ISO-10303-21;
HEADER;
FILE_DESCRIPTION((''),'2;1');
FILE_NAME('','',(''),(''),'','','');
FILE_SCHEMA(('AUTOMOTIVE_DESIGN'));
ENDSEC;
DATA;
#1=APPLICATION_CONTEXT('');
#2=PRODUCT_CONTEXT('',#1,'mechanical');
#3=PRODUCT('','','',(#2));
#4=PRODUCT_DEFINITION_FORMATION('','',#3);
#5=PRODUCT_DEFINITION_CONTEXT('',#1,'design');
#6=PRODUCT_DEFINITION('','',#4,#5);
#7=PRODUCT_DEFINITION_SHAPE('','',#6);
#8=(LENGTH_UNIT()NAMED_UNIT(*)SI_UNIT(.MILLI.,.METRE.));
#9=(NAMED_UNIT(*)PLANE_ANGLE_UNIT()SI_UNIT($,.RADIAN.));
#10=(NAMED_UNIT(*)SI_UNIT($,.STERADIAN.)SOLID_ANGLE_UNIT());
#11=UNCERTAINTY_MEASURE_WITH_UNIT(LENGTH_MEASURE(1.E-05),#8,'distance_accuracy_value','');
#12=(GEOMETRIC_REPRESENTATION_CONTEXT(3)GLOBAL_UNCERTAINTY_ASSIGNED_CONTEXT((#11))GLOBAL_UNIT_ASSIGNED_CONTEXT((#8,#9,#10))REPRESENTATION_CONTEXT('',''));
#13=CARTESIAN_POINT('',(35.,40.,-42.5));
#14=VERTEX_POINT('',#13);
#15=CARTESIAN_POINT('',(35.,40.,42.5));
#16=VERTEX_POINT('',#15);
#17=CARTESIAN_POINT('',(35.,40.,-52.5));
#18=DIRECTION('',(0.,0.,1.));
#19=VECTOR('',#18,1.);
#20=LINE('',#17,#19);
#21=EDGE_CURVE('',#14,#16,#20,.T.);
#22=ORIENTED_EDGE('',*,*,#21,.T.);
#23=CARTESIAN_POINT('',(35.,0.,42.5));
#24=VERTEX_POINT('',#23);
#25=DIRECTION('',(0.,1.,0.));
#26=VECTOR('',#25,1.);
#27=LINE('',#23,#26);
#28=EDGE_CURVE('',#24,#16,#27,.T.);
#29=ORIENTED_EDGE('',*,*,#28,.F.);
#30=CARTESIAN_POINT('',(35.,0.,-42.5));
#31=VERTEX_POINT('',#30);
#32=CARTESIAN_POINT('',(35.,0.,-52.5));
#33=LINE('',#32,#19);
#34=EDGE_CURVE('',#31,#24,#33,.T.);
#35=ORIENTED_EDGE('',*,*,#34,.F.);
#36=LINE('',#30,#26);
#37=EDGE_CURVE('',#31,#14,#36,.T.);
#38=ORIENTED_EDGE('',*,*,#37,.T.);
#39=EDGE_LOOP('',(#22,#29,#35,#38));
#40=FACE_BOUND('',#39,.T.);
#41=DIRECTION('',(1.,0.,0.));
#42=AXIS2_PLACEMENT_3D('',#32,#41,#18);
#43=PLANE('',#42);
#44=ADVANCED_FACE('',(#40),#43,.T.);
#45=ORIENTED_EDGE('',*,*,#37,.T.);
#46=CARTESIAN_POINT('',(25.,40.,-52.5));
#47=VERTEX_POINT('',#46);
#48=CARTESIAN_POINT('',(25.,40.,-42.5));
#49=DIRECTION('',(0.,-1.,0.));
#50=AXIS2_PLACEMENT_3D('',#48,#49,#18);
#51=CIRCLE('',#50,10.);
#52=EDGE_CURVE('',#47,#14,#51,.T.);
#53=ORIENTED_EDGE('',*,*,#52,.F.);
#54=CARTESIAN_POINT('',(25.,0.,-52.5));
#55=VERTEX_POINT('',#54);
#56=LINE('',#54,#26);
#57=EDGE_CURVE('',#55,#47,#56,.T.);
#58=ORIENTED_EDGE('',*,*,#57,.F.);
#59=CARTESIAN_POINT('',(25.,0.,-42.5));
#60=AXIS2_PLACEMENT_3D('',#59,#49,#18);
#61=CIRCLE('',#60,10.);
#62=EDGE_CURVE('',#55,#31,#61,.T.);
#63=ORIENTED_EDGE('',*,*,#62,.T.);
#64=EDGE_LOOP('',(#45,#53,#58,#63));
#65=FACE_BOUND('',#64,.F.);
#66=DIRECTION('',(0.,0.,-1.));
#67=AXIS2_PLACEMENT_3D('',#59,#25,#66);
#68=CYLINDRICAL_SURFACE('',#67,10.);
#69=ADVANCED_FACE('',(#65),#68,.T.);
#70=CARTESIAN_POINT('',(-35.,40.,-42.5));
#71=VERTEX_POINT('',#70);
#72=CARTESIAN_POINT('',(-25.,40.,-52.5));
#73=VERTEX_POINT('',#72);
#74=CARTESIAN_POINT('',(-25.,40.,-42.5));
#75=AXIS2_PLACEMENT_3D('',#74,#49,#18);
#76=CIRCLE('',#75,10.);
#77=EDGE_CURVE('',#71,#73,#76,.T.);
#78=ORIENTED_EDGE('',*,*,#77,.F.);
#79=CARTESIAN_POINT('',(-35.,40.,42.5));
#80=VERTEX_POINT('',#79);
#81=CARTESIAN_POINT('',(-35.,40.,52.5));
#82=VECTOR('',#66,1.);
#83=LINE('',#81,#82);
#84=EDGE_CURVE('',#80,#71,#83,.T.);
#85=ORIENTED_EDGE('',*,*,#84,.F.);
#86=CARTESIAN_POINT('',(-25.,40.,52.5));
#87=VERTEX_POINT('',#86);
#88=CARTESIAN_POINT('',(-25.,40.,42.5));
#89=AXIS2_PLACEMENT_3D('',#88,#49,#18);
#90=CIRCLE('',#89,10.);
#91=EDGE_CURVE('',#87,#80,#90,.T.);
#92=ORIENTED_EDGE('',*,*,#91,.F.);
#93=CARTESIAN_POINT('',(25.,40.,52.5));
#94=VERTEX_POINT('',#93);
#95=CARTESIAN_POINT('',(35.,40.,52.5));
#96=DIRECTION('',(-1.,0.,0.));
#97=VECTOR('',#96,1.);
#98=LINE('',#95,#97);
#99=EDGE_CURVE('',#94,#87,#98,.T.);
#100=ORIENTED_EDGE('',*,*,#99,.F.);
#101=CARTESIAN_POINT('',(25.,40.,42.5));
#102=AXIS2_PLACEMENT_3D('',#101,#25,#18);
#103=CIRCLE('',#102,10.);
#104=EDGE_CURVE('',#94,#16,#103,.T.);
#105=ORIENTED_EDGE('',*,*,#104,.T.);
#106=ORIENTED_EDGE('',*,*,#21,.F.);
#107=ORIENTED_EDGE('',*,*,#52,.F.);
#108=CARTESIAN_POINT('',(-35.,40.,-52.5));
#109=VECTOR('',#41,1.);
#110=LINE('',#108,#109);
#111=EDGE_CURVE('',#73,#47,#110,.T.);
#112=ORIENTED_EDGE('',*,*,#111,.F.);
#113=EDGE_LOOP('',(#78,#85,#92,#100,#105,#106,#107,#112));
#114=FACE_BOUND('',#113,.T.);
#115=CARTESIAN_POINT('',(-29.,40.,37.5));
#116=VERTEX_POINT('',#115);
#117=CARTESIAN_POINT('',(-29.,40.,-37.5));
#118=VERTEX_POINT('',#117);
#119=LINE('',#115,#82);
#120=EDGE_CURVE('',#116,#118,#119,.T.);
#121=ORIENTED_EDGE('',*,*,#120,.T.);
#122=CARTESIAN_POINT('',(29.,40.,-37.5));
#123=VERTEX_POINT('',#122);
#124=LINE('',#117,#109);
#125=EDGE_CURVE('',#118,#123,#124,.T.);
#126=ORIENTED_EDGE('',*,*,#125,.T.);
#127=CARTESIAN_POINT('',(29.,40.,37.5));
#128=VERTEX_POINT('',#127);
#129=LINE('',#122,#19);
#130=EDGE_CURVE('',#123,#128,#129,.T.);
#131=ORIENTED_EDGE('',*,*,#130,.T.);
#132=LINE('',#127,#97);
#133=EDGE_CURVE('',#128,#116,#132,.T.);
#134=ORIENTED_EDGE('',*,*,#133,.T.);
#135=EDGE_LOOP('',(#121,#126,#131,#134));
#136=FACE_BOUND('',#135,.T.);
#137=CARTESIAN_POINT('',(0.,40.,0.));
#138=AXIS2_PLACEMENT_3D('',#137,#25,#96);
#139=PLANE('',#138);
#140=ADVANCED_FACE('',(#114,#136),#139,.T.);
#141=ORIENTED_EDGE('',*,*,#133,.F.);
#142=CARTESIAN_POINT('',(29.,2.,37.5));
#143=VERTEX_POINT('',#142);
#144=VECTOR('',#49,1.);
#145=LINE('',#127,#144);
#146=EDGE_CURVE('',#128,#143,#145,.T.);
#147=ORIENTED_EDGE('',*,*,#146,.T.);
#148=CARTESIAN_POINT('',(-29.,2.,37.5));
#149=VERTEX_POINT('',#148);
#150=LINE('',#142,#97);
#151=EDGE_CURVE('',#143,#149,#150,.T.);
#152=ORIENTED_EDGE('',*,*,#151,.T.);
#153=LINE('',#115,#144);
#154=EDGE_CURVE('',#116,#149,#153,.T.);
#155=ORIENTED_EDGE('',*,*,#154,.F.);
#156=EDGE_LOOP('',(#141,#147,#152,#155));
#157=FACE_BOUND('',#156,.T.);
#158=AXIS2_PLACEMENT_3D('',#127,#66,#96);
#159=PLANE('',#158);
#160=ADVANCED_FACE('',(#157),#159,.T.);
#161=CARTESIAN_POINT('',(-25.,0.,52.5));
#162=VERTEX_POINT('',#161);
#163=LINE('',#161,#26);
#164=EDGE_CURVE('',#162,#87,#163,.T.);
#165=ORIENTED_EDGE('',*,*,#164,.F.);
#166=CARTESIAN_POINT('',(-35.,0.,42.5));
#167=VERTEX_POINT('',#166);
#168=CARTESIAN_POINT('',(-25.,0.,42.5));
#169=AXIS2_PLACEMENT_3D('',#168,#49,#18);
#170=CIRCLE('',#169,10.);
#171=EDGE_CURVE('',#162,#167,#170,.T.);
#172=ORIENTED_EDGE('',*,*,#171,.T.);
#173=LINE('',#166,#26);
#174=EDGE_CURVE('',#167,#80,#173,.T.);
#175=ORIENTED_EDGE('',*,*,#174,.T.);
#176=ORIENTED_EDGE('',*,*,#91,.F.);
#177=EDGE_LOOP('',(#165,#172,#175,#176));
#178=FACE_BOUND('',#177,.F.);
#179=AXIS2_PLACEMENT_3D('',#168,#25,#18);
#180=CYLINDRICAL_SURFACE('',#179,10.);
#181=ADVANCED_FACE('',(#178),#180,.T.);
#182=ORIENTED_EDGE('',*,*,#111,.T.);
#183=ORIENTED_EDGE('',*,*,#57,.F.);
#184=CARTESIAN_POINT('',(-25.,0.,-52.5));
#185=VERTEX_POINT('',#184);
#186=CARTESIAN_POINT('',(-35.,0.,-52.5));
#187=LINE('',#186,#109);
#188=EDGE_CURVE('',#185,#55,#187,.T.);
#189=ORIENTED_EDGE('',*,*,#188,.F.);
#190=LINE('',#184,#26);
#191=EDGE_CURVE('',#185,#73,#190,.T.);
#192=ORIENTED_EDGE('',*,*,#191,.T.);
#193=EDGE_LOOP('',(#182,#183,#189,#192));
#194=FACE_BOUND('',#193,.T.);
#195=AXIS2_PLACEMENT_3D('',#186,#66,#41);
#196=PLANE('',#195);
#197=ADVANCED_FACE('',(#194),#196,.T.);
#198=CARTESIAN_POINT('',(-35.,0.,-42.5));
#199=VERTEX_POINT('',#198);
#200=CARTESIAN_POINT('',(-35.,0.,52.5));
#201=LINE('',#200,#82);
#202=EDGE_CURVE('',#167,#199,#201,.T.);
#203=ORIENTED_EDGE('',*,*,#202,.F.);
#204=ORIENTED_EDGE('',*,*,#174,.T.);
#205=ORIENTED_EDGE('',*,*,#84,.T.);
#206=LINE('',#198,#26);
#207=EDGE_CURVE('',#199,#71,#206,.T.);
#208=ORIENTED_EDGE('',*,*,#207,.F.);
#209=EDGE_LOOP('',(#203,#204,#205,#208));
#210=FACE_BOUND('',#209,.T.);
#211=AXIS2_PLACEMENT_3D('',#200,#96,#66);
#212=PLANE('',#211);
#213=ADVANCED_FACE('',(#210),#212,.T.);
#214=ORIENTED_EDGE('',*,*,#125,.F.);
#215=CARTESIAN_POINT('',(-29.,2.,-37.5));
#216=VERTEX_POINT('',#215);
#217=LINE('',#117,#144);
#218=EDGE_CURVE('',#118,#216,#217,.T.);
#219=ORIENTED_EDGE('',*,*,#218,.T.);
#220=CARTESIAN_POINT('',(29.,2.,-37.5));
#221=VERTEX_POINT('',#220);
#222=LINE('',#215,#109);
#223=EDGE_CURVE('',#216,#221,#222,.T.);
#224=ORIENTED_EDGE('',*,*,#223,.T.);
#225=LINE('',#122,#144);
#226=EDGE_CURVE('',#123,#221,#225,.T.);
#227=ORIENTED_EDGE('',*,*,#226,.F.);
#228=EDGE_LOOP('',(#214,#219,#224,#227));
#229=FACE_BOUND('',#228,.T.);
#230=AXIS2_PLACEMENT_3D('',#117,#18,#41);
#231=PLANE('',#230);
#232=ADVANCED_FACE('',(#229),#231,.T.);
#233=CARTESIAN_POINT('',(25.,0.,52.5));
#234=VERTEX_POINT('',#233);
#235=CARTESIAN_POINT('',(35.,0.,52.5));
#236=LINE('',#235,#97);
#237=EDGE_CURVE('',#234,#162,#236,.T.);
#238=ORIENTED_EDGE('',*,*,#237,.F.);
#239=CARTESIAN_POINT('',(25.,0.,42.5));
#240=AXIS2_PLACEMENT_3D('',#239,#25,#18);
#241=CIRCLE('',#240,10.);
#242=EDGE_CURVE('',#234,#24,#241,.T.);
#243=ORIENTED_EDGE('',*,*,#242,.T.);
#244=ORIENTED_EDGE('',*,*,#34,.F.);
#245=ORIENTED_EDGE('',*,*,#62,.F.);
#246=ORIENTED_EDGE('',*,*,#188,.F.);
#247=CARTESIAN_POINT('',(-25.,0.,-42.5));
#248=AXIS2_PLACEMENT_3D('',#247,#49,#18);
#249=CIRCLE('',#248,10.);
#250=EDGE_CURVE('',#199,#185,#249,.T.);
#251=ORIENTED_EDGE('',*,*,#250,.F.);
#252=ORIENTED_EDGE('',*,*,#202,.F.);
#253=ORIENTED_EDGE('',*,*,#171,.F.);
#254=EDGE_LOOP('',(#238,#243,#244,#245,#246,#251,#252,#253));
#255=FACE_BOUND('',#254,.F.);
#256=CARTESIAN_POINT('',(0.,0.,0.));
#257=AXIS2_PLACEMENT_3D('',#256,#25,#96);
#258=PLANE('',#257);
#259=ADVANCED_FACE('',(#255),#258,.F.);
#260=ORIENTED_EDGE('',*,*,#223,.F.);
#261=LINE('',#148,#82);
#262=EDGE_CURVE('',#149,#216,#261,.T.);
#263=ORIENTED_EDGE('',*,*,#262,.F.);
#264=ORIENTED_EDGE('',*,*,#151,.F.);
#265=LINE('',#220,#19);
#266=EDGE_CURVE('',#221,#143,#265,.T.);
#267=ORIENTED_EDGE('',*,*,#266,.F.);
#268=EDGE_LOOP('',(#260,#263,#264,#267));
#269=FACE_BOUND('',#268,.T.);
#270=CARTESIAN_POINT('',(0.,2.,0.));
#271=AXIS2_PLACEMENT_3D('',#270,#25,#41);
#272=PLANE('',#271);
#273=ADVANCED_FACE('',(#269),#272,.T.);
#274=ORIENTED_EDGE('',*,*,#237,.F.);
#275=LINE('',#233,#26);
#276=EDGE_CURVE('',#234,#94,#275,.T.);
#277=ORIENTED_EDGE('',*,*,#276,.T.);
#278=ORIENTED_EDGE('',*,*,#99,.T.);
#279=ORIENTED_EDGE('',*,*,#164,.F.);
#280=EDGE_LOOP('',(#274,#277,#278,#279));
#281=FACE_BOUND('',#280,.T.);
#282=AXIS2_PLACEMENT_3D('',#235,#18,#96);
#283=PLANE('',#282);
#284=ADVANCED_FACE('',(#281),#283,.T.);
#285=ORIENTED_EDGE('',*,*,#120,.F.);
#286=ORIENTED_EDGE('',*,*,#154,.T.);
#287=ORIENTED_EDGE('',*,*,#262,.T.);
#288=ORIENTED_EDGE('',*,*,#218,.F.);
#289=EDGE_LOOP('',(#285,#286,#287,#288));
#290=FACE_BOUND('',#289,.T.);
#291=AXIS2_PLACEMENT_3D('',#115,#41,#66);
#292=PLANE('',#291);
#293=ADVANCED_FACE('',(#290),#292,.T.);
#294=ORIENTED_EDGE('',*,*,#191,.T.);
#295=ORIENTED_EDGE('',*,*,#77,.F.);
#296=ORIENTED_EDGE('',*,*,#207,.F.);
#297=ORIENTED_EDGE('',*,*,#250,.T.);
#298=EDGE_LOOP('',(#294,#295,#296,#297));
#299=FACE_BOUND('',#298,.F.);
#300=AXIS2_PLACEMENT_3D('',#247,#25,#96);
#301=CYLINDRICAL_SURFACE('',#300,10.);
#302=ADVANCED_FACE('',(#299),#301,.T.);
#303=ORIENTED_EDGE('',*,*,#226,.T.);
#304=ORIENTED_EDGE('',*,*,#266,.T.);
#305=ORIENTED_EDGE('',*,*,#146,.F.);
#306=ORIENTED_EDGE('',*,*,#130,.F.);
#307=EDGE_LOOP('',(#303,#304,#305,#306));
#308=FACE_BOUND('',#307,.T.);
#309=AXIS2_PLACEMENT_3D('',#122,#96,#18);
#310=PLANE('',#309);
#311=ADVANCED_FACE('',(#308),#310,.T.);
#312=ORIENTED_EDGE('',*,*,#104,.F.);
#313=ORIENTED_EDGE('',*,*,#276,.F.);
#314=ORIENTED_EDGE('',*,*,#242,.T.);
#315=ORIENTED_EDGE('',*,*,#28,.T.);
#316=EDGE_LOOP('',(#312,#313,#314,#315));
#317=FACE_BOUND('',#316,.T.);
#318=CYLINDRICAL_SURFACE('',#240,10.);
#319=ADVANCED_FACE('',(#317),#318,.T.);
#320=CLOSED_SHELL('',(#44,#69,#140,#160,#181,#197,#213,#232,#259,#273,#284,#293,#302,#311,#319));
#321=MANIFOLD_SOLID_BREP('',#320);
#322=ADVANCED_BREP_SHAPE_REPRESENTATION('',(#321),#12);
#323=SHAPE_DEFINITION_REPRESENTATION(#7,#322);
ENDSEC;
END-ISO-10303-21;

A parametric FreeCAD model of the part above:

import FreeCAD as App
import Part
import Sketcher
from FreeCAD import Vector
Q = App.Units.Quantity


def edges_at(feature, points):
    """Names of the edges that pass closest to the given points."""
    edges = feature.Shape.Edges
    near = lambda p: min(range(len(edges)), key=lambda i: edges[i].distToShape(Part.Vertex(*p))[0])
    return sorted({f"Edge{near(p) + 1}" for p in points})

doc = App.newDocument("Part")
body = doc.addObject("PartDesign::Body", "Body")

# Sketch on XZ plane
sketch1 = body.newObject("Sketcher::SketchObject", "Sketch")
sketch1.AttachmentSupport = (doc.getObject("XZ_Plane"), [""])
sketch1.MapMode = "FlatFace"
sketch1.addGeometry(Part.LineSegment(Vector(-35, 52.5, 0), Vector(35, 52.5, 0)), False)
sketch1.addGeometry(Part.LineSegment(Vector(35, 52.5, 0), Vector(35, -52.5, 0)), False)
sketch1.addGeometry(Part.LineSegment(Vector(35, -52.5, 0), Vector(-35, -52.5, 0)), False)
sketch1.addGeometry(Part.LineSegment(Vector(-35, -52.5, 0), Vector(-35, 52.5, 0)), False)
sketch1.addConstraint(Sketcher.Constraint("Coincident", 0, 2, 1, 1))
sketch1.addConstraint(Sketcher.Constraint("Coincident", 1, 2, 2, 1))
sketch1.addConstraint(Sketcher.Constraint("Coincident", 2, 2, 3, 1))
sketch1.addConstraint(Sketcher.Constraint("Coincident", 3, 2, 0, 1))
sketch1.addConstraint(Sketcher.Constraint("Horizontal", 0))
sketch1.addConstraint(Sketcher.Constraint("Vertical", 1))
sketch1.addConstraint(Sketcher.Constraint("Horizontal", 2))
sketch1.addConstraint(Sketcher.Constraint("Vertical", 3))
sketch1.addConstraint(Sketcher.Constraint("Symmetric", 0, 2, 2, 2, -1, 1))
sketch1.addConstraint(Sketcher.Constraint("DistanceX", 0, 1, 0, 2, Q("70 mm")))
sketch1.addConstraint(Sketcher.Constraint("DistanceY", 1, 2, 1, 1, Q("105 mm")))
pad1 = body.newObject("PartDesign::Pad", "Pad")
pad1.Profile = sketch1
pad1.Length = 40
pad1.Reversed = True
doc.recompute()

fillet = body.newObject("PartDesign::Fillet", "Fillet")
fillet.Base = (pad1, edges_at(pad1, [
    (-35, 20, 52.5),
    (35, 20, 52.5),
    (-35, 20, -52.5),
    (35, 20, -52.5),
]))
fillet.Radius = 10

# Sketch on XZ plane
sketch2 = body.newObject("Sketcher::SketchObject", "Sketch001")
sketch2.AttachmentSupport = (doc.getObject("XZ_Plane"), [""])
sketch2.MapMode = "FlatFace"
sketch2.AttachmentOffset = App.Placement(Vector(0, 0, -40), App.Rotation())
sketch2.addGeometry(Part.LineSegment(Vector(-29, 37.5, 0), Vector(29, 37.5, 0)), False)
sketch2.addGeometry(Part.LineSegment(Vector(29, 37.5, 0), Vector(29, -37.5, 0)), False)
sketch2.addGeometry(Part.LineSegment(Vector(29, -37.5, 0), Vector(-29, -37.5, 0)), False)
sketch2.addGeometry(Part.LineSegment(Vector(-29, -37.5, 0), Vector(-29, 37.5, 0)), False)
sketch2.addConstraint(Sketcher.Constraint("Coincident", 0, 2, 1, 1))
sketch2.addConstraint(Sketcher.Constraint("Coincident", 1, 2, 2, 1))
sketch2.addConstraint(Sketcher.Constraint("Coincident", 2, 2, 3, 1))
sketch2.addConstraint(Sketcher.Constraint("Coincident", 3, 2, 0, 1))
sketch2.addConstraint(Sketcher.Constraint("Horizontal", 0))
sketch2.addConstraint(Sketcher.Constraint("Vertical", 1))
sketch2.addConstraint(Sketcher.Constraint("Horizontal", 2))
sketch2.addConstraint(Sketcher.Constraint("Vertical", 3))
sketch2.addConstraint(Sketcher.Constraint("Symmetric", 0, 2, 2, 2, -1, 1))
sketch2.addConstraint(Sketcher.Constraint("DistanceX", 0, 1, 0, 2, Q("58 mm")))
sketch2.addConstraint(Sketcher.Constraint("DistanceY", 1, 2, 1, 1, Q("75 mm")))
pocket1 = body.newObject("PartDesign::Pocket", "Pocket")
pocket1.Profile = sketch2
pocket1.Length = 38
pocket1.Reversed = True

doc.recompute()
